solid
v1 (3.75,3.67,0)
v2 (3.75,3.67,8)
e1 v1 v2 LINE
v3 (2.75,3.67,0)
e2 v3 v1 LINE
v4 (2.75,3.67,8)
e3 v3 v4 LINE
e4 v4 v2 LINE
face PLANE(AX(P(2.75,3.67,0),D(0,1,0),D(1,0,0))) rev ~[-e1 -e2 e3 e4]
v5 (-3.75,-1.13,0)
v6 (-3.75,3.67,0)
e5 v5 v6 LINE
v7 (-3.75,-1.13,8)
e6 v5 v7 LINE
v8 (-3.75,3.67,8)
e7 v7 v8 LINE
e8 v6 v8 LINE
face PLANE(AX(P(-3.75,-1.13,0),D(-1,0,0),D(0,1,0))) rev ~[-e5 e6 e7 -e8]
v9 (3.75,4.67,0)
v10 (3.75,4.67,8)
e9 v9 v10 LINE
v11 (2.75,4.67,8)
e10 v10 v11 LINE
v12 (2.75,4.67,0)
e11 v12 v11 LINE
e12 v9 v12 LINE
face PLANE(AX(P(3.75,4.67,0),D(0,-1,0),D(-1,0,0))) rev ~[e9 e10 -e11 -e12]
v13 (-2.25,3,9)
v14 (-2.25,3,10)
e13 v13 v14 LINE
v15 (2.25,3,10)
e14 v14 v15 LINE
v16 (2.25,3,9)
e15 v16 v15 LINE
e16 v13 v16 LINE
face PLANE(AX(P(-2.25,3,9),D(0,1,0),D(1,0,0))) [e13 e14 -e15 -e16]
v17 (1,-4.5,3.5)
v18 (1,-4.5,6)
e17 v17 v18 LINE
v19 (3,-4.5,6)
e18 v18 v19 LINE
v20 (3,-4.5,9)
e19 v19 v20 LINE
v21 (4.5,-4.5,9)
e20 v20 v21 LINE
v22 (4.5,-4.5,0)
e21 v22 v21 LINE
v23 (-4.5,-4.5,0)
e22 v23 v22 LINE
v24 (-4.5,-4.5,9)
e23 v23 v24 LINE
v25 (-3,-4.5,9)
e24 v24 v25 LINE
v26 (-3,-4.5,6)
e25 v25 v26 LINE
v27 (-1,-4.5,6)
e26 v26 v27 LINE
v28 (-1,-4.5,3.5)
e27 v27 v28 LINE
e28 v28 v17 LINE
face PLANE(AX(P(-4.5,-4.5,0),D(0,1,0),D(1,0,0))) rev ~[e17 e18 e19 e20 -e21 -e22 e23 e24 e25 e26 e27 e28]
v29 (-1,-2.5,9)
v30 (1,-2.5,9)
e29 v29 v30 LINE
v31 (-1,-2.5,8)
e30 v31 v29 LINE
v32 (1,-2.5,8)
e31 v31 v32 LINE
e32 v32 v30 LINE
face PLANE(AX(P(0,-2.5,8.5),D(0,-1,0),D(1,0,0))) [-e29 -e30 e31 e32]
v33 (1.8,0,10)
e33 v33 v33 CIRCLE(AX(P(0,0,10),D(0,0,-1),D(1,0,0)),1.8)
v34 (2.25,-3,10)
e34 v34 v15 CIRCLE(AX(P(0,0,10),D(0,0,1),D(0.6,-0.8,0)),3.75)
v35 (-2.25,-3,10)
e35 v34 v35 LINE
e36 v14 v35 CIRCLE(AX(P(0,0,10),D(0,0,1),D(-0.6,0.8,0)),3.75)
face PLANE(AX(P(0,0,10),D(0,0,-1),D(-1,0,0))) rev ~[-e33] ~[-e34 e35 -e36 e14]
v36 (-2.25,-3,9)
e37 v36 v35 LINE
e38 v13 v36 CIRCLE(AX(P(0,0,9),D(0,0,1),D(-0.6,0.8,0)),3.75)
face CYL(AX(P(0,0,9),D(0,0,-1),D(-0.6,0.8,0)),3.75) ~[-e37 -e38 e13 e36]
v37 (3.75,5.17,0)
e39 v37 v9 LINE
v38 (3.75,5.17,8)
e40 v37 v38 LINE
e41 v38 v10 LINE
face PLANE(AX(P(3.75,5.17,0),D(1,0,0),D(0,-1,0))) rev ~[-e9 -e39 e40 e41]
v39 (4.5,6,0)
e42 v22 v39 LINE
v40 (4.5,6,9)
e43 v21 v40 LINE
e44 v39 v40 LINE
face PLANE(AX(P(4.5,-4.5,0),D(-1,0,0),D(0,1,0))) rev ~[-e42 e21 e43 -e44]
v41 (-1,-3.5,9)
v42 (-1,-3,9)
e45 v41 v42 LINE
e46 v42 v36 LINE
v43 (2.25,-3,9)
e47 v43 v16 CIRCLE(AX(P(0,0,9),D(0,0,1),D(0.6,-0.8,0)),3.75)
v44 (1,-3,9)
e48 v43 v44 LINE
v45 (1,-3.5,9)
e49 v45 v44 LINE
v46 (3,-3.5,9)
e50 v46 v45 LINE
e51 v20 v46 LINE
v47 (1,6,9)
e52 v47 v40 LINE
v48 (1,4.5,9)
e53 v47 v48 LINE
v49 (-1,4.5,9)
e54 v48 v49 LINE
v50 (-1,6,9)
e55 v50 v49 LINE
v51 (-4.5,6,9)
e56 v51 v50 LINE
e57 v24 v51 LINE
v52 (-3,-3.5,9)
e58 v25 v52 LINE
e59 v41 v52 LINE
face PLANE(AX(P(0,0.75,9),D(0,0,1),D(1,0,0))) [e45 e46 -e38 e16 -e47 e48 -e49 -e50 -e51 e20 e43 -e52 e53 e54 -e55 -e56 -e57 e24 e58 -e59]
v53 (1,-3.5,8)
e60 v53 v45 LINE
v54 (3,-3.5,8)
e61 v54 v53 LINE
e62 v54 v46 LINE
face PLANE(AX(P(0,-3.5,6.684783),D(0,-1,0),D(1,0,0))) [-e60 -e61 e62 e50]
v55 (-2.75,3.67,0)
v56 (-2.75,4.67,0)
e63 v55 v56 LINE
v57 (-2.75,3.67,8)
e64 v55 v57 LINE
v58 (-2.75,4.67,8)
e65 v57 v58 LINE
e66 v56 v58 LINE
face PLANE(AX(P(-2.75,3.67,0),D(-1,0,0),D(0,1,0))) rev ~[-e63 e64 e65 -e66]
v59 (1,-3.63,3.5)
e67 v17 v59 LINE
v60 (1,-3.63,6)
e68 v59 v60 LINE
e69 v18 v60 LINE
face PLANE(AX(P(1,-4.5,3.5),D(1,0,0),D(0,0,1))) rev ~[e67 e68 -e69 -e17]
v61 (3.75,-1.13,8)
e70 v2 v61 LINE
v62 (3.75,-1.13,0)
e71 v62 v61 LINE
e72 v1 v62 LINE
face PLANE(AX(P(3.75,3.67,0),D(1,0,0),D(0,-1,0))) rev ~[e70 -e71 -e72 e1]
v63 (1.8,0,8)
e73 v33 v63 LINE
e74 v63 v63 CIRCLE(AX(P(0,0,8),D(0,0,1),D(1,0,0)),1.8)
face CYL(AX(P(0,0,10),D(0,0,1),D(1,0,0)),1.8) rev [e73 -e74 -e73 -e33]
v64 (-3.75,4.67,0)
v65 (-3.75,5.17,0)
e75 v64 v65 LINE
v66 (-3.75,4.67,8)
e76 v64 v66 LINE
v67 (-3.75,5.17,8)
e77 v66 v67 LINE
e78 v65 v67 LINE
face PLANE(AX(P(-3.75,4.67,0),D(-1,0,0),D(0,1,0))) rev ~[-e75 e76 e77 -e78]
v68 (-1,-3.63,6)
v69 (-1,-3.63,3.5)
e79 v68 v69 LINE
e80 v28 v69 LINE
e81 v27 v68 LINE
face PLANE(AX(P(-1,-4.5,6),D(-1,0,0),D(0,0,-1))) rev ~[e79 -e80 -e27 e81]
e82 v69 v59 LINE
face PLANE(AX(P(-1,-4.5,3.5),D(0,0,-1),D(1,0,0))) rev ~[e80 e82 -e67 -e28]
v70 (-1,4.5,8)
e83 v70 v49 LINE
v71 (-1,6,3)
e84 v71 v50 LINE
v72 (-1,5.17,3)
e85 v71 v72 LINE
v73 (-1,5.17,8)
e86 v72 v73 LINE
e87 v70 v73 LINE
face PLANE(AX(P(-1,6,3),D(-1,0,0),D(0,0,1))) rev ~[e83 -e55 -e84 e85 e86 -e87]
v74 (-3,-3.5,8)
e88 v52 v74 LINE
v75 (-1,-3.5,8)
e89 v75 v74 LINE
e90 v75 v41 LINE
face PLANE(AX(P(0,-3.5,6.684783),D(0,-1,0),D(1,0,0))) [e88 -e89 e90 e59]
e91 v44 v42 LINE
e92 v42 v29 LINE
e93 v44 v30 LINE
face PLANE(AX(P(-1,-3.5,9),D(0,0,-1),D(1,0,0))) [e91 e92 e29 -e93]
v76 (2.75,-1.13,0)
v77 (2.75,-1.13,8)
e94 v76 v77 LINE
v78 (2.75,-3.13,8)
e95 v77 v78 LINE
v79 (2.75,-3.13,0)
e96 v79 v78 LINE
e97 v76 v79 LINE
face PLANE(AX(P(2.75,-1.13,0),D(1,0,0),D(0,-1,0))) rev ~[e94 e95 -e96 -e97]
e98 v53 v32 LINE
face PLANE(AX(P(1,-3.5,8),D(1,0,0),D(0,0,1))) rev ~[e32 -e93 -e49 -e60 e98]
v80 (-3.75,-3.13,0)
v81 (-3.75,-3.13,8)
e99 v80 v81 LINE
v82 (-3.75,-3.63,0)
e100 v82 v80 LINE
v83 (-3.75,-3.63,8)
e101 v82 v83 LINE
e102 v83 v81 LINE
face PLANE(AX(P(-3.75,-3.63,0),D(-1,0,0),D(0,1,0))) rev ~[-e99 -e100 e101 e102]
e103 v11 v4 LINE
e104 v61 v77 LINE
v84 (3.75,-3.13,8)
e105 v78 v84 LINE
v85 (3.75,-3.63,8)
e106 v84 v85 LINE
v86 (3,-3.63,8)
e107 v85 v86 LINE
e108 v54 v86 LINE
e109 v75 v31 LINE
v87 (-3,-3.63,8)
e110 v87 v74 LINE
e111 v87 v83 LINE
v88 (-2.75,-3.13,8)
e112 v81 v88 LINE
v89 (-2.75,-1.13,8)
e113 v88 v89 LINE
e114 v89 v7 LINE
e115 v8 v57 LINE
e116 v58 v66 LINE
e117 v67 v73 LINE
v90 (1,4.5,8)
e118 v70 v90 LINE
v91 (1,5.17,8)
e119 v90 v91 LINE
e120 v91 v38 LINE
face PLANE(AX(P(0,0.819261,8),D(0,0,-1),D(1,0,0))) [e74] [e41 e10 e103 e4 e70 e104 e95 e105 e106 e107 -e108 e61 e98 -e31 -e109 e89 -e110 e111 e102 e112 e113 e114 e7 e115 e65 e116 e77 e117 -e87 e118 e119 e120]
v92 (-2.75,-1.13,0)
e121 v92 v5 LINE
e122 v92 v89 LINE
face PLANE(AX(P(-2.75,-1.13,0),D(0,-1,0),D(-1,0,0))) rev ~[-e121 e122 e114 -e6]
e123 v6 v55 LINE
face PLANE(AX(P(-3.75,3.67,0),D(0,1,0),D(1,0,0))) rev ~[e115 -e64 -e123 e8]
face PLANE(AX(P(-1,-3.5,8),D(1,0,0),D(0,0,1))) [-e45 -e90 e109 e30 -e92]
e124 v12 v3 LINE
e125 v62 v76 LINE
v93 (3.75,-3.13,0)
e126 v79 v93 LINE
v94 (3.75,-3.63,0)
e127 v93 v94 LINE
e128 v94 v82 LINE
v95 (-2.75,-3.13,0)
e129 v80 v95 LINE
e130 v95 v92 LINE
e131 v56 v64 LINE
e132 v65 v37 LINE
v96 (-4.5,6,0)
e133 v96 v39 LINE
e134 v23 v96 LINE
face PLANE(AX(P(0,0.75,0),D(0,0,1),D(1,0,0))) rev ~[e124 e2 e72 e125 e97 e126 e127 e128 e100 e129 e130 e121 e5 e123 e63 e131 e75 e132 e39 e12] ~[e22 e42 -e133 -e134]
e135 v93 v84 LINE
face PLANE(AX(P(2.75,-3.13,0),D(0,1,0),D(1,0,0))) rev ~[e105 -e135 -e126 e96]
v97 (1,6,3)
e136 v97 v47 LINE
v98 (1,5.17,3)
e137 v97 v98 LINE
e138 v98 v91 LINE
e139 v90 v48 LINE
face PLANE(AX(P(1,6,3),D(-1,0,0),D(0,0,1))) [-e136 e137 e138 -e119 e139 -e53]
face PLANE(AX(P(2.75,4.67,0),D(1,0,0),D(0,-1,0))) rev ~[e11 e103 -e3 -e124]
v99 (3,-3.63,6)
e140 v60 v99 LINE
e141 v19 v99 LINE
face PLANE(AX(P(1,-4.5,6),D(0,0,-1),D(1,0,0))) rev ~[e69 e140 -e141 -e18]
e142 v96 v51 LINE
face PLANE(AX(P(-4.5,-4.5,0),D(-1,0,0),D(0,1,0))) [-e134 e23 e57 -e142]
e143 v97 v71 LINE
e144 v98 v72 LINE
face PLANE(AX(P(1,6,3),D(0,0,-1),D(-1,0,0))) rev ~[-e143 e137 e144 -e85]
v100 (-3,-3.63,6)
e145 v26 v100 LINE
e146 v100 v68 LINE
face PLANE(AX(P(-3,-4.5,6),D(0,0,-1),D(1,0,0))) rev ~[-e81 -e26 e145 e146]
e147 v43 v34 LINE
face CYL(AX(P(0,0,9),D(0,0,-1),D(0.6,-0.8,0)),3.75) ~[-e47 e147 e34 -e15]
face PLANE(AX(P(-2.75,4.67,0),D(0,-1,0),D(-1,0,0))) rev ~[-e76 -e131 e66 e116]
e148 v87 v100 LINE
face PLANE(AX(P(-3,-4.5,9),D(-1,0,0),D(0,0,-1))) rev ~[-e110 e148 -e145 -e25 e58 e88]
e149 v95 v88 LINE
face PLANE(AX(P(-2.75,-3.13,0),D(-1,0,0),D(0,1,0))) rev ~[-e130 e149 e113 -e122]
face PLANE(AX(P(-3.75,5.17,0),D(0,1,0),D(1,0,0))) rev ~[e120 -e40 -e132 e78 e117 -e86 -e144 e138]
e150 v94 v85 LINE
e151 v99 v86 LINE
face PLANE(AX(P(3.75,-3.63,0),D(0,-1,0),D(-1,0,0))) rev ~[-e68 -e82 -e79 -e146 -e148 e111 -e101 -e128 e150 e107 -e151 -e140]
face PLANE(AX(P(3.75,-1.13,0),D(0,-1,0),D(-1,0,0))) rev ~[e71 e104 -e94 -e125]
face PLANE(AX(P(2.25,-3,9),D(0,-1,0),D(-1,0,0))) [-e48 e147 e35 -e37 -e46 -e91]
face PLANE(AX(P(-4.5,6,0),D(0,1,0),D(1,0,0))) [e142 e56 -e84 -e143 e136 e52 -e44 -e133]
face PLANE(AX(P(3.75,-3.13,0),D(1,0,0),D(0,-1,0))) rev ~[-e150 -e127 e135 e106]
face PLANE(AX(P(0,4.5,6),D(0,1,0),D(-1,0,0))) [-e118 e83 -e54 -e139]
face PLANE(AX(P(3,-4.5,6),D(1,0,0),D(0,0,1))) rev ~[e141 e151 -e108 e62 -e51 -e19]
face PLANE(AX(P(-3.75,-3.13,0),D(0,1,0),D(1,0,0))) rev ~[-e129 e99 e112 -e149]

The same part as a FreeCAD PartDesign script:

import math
import FreeCAD as App
import Part
import Sketcher
from FreeCAD import Vector
Q = App.Units.Quantity


def add_polygon(sketch, points):
    """Adds a closed chain of lines whose ends are joined by coincident constraints."""
    first, n = sketch.GeometryCount, len(points)
    for a, b in zip(points, points[1:] + points[:1]):
        sketch.addGeometry(Part.LineSegment(App.Vector(*a, 0), App.Vector(*b, 0)), False)
    for i in range(n):
        sketch.addConstraint(Sketcher.Constraint("Coincident", first + i, 2, first + (i + 1) % n, 1))

doc = App.newDocument("Part")
body = doc.addObject("PartDesign::Body", "Body")

# Sketch on XY plane
sketch1 = doc.addObject("Sketcher::SketchObject", "Sketch")
body.addObject(sketch1)
sketch1.AttachmentSupport = (doc.XY_Plane, [""])
sketch1.MapMode = "FlatFace"
add_polygon(sketch1, [(-4.5, 6), (-4.5, -4.5), (4.5, -4.5), (4.5, 6)])  # lines 0-3
sketch1.addConstraint(Sketcher.Constraint("Vertical", 0))
sketch1.addConstraint(Sketcher.Constraint("Horizontal", 1))
sketch1.addConstraint(Sketcher.Constraint("Vertical", 2))
sketch1.addConstraint(Sketcher.Constraint("Horizontal", 3))
sketch1.addConstraint(Sketcher.Constraint("DistanceX", 1, 1, 1, 2, Q("9 mm")))
sketch1.addConstraint(Sketcher.Constraint("DistanceY", 0, 2, 0, 1, Q("10.5 mm")))
sketch1.addConstraint(Sketcher.Constraint("DistanceY", -1, 1, 2, 2, Q("6 mm")))
sketch1.addConstraint(Sketcher.Constraint("DistanceX", 0, 2, -1, 1, Q("4.5 mm")))
pad1 = doc.addObject("PartDesign::Pad", "Pad")
body.addObject(pad1)
pad1.Profile = sketch1
pad1.Length = 9

# Sketch on XY plane
sketch2 = doc.addObject("Sketcher::SketchObject", "Sketch001")
body.addObject(sketch2)
sketch2.AttachmentSupport = (doc.XY_Plane, [""])
sketch2.MapMode = "FlatFace"
add_polygon(sketch2, [(-3.75, -3.63), (-3.75, -3.13), (-2.75, -3.13), (-2.75, -1.13), (-3.75, -1.13), (-3.75, 3.67), (-2.75, 3.67), (-2.75, 4.67), (-3.75, 4.67), (-3.75, 5.17), (3.75, 5.17), (3.75, 4.67), (2.75, 4.67), (2.75, 3.67), (3.75, 3.67), (3.75, -1.13), (2.75, -1.13), (2.75, -3.13), (3.75, -3.13), (3.75, -3.63)])  # lines 0-19
sketch2.addConstraint(Sketcher.Constraint("Vertical", 0))
sketch2.addConstraint(Sketcher.Constraint("Horizontal", 1))
sketch2.addConstraint(Sketcher.Constraint("Vertical", 2))
sketch2.addConstraint(Sketcher.Constraint("Horizontal", 3))
sketch2.addConstraint(Sketcher.Constraint("Vertical", 4))
sketch2.addConstraint(Sketcher.Constraint("Horizontal", 5))
sketch2.addConstraint(Sketcher.Constraint("Vertical", 6))
sketch2.addConstraint(Sketcher.Constraint("Horizontal", 7))
sketch2.addConstraint(Sketcher.Constraint("Vertical", 8))
sketch2.addConstraint(Sketcher.Constraint("Horizontal", 9))
sketch2.addConstraint(Sketcher.Constraint("Vertical", 10))
sketch2.addConstraint(Sketcher.Constraint("Horizontal", 11))
sketch2.addConstraint(Sketcher.Constraint("Vertical", 12))
sketch2.addConstraint(Sketcher.Constraint("Horizontal", 13))
sketch2.addConstraint(Sketcher.Constraint("Vertical", 14))
sketch2.addConstraint(Sketcher.Constraint("Horizontal", 15))
sketch2.addConstraint(Sketcher.Constraint("Vertical", 16))
sketch2.addConstraint(Sketcher.Constraint("Horizontal", 17))
sketch2.addConstraint(Sketcher.Constraint("Vertical", 18))
sketch2.addConstraint(Sketcher.Constraint("Horizontal", 19))
sketch2.addConstraint(Sketcher.Constraint("Symmetric", 7, 2, 10, 2, -2))
sketch2.addConstraint(Sketcher.Constraint("Symmetric", 5, 2, 12, 2, -2))
sketch2.addConstraint(Sketcher.Constraint("Symmetric", 3, 2, 14, 2, -2))
sketch2.addConstraint(Sketcher.Constraint("Symmetric", 1, 2, 16, 2, -2))
sketch2.addConstraint(Sketcher.Constraint("Vertical", 0, 2, 3, 2))
sketch2.addConstraint(Sketcher.Constraint("Vertical", 2, 2, 5, 2))
sketch2.addConstraint(Sketcher.Constraint("Vertical", 4, 2, 7, 2))
sketch2.addConstraint(Sketcher.Constraint("Vertical", 14, 2, 17, 2))
sketch2.addConstraint(Sketcher.Constraint("Equal", 17, 6))
sketch2.addConstraint(Sketcher.Constraint("Equal", 0, 8))
sketch2.addConstraint(Sketcher.Constraint("DistanceX", 1, 1, 1, 2, Q("1 mm")))
sketch2.addConstraint(Sketcher.Constraint("DistanceY", 2, 1, 2, 2, Q("2 mm")))
sketch2.addConstraint(Sketcher.Constraint("DistanceX", 9, 1, 9, 2, Q("7.5 mm")))
sketch2.addConstraint(Sketcher.Constraint("DistanceY", 0, 1, 0, 2, Q("0.5 mm")))
sketch2.addConstraint(Sketcher.Constraint("DistanceY", 4, 1, 4, 2, Q("4.8 mm")))
sketch2.addConstraint(Sketcher.Constraint("DistanceY", 0, 2, -1, 1, Q("3.13 mm")))
pocket1 = doc.addObject("PartDesign::Pocket", "Pocket")
body.addObject(pocket1)
pocket1.Profile = sketch2
pocket1.Length = 8
pocket1.Reversed = True

# Sketch on XY plane
sketch3 = doc.addObject("Sketcher::SketchObject", "Sketch002")
body.addObject(sketch3)
sketch3.AttachmentSupport = (doc.XY_Plane, [""])
sketch3.MapMode = "FlatFace"
sketch3.AttachmentOffset = App.Placement(Vector(0, 0, 9), App.Rotation())
sketch3.addGeometry(Part.LineSegment(Vector(2.25, 3, 0), Vector(-2.25, 3, 0)), False)
sketch3.addGeometry(Part.ArcOfCircle(Part.Circle(Vector(0, 0, 0), Vector(0, 0, 1), 3.75), math.radians(126.869898), math.radians(233.130102)), False)
sketch3.addGeometry(Part.LineSegment(Vector(-2.25, -3, 0), Vector(2.25, -3, 0)), False)
sketch3.addGeometry(Part.ArcOfCircle(Part.Circle(Vector(0, 0, 0), Vector(0, 0, 1), 3.75), math.radians(-53.130102), math.radians(53.130102)), False)
sketch3.addConstraint(Sketcher.Constraint("Coincident", 0, 2, 1, 1))
sketch3.addConstraint(Sketcher.Constraint("Coincident", 1, 2, 2, 1))
sketch3.addConstraint(Sketcher.Constraint("Coincident", 2, 2, 3, 1))
sketch3.addConstraint(Sketcher.Constraint("Coincident", 3, 2, 0, 1))
sketch3.addConstraint(Sketcher.Constraint("Horizontal", 0))
sketch3.addConstraint(Sketcher.Constraint("Horizontal", 2))
sketch3.addConstraint(Sketcher.Constraint("Coincident", 1, 3, -1, 1))
sketch3.addConstraint(Sketcher.Constraint("Coincident", 3, 3, -1, 1))
sketch3.addConstraint(Sketcher.Constraint("Equal", 1, 3))
sketch3.addConstraint(Sketcher.Constraint("Vertical", 0, 2, 1, 2))
sketch3.addConstraint(Sketcher.Constraint("Radius", 1, Q("3.75 mm")))
sketch3.addConstraint(Sketcher.Constraint("DistanceX", 0, 2, 0, 1, Q("4.5 mm")))
pad2 = doc.addObject("PartDesign::Pad", "Pad001")
body.addObject(pad2)
pad2.Profile = sketch3
pad2.Length = 1

# Sketch on XZ plane
sketch4 = doc.addObject("Sketcher::SketchObject", "Sketch003")
body.addObject(sketch4)
sketch4.AttachmentSupport = (doc.XZ_Plane, [""])
sketch4.MapMode = "FlatFace"
sketch4.AttachmentOffset = App.Placement(Vector(0, 0, -6), App.Rotation())
add_polygon(sketch4, [(1, 9), (1, 3), (-1, 3), (-1, 9)])  # lines 0-3
sketch4.addConstraint(Sketcher.Constraint("Vertical", 0))
sketch4.addConstraint(Sketcher.Constraint("Horizontal", 1))
sketch4.addConstraint(Sketcher.Constraint("Vertical", 2))
sketch4.addConstraint(Sketcher.Constraint("Horizontal", 3))
sketch4.addConstraint(Sketcher.Constraint("DistanceX", 1, 2, 1, 1, Q("2 mm")))
sketch4.addConstraint(Sketcher.Constraint("DistanceY", 0, 2, 0, 1, Q("6 mm")))
sketch4.addConstraint(Sketcher.Constraint("DistanceX", -1, 1, 0, 2, Q("1 mm")))
sketch4.addConstraint(Sketcher.Constraint("DistanceY", -1, 1, 0, 2, Q("3 mm")))
pocket2 = doc.addObject("PartDesign::Pocket", "Pocket001")
body.addObject(pocket2)
pocket2.Profile = sketch4
pocket2.Length = 1.5
pocket2.Reversed = True

# Sketch on XY plane
sketch5 = doc.addObject("Sketcher::SketchObject", "Sketch004")
body.addObject(sketch5)
sketch5.AttachmentSupport = (doc.XY_Plane, [""])
sketch5.MapMode = "FlatFace"
sketch5.AttachmentOffset = App.Placement(Vector(0, 0, 10), App.Rotation())
sketch5.addGeometry(Part.Circle(Vector(0, 0, 0), Vector(0, 0, 1), 1.8), False)
sketch5.addConstraint(Sketcher.Constraint("Coincident", 0, 3, -1, 1))
sketch5.addConstraint(Sketcher.Constraint("Diameter", 0, Q("3.6 mm")))
pocket3 = doc.addObject("PartDesign::Pocket", "Pocket002")
body.addObject(pocket3)
pocket3.Profile = sketch5
pocket3.Type = "ThroughAll"

# Sketch on XZ plane
sketch6 = doc.addObject("Sketcher::SketchObject", "Sketch005")
body.addObject(sketch6)
sketch6.AttachmentSupport = (doc.XZ_Plane, [""])
sketch6.MapMode = "FlatFace"
sketch6.AttachmentOffset = App.Placement(Vector(0, 0, 4.5), App.Rotation())
add_polygon(sketch6, [(-3, 9), (-3, 6), (-1, 6), (-1, 3.5), (1, 3.5), (1, 6), (3, 6), (3, 9)])  # lines 0-7
sketch6.addConstraint(Sketcher.Constraint("Vertical", 0))
sketch6.addConstraint(Sketcher.Constraint("Horizontal", 1))
sketch6.addConstraint(Sketcher.Constraint("Vertical", 2))
sketch6.addConstraint(Sketcher.Constraint("Horizontal", 3))
sketch6.addConstraint(Sketcher.Constraint("Vertical", 4))
sketch6.addConstraint(Sketcher.Constraint("Horizontal", 5))
sketch6.addConstraint(Sketcher.Constraint("Vertical", 6))
sketch6.addConstraint(Sketcher.Constraint("Horizontal", 7))
sketch6.addConstraint(Sketcher.Constraint("Symmetric", 1, 2, 4, 2, -2))
sketch6.addConstraint(Sketcher.Constraint("Equal", 1, 3))
sketch6.addConstraint(Sketcher.Constraint("Equal", 3, 5))
sketch6.addConstraint(Sketcher.Constraint("DistanceX", 1, 1, 1, 2, Q("2 mm")))
sketch6.addConstraint(Sketcher.Constraint("DistanceY", 0, 2, 0, 1, Q("3 mm")))
sketch6.addConstraint(Sketcher.Constraint("DistanceY", 2, 2, 2, 1, Q("2.5 mm")))
sketch6.addConstraint(Sketcher.Constraint("DistanceY", -1, 1, 0, 2, Q("6 mm")))
pocket4 = doc.addObject("PartDesign::Pocket", "Pocket003")
body.addObject(pocket4)
pocket4.Profile = sketch6
pocket4.Length = 1

# Sketch on XZ plane
sketch7 = doc.addObject("Sketcher::SketchObject", "Sketch006")
body.addObject(sketch7)
sketch7.AttachmentSupport = (doc.XZ_Plane, [""])
sketch7.MapMode = "FlatFace"
sketch7.AttachmentOffset = App.Placement(Vector(0, 0, 3.5), App.Rotation())
add_polygon(sketch7, [(-1, 9), (-1, 8), (1, 8), (1, 9)])  # lines 0-3
sketch7.addConstraint(Sketcher.Constraint("Vertical", 0))
sketch7.addConstraint(Sketcher.Constraint("Horizontal", 1))
sketch7.addConstraint(Sketcher.Constraint("Vertical", 2))
sketch7.addConstraint(Sketcher.Constraint("Horizontal", 3))
sketch7.addConstraint(Sketcher.Constraint("DistanceX", 1, 1, 1, 2, Q("2 mm")))
sketch7.addConstraint(Sketcher.Constraint("DistanceY", 0, 2, 0, 1, Q("1 mm")))
sketch7.addConstraint(Sketcher.Constraint("DistanceX", 0, 2, -1, 1, Q("1 mm")))
sketch7.addConstraint(Sketcher.Constraint("DistanceY", -1, 1, 0, 2, Q("8 mm")))
pocket5 = doc.addObject("PartDesign::Pocket", "Pocket004")
body.addObject(pocket5)
pocket5.Profile = sketch7
pocket5.Length = 1

doc.recompute()
